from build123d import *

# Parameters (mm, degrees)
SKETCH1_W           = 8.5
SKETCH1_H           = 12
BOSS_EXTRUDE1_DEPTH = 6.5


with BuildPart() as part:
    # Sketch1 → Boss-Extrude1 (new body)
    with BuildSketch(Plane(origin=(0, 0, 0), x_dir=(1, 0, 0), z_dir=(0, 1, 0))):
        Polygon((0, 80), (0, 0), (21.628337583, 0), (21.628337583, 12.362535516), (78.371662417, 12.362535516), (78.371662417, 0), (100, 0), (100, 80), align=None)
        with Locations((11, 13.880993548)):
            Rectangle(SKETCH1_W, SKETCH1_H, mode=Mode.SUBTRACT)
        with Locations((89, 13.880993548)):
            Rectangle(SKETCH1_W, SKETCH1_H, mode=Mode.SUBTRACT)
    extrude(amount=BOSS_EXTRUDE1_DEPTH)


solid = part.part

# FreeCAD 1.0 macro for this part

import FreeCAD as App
import Part
import Sketcher
from FreeCAD import Vector
Q = App.Units.Quantity


def add_polygon(sketch, points):
    """Adds a closed chain of lines whose ends are joined by coincident constraints."""
    first, n = sketch.GeometryCount, len(points)
    for a, b in zip(points, points[1:] + points[:1]):
        sketch.addGeometry(Part.LineSegment(App.Vector(*a, 0), App.Vector(*b, 0)), False)
    for i in range(n):
        sketch.addConstraint(Sketcher.Constraint("Coincident", first + i, 2, first + (i + 1) % n, 1))

doc = App.newDocument("Part")
body = doc.addObject("PartDesign::Body", "Body")

# Sketch on XZ plane
sketch1 = doc.addObject("Sketcher::SketchObject", "Sketch")
body.addObject(sketch1)
sketch1.AttachmentSupport = (doc.XZ_Plane, [""])
sketch1.MapMode = "FlatFace"
add_polygon(sketch1, [(0, -80), (0, 0), (22, 0), (22, -12), (78, -12), (78, 0), (100, 0), (100, -80)])  # lines 0-7
add_polygon(sketch1, [(15, -8), (7, -8), (7, -20), (15, -20)])  # lines 8-11
add_polygon(sketch1, [(93, -8), (85, -8), (85, -20), (93, -20)])  # lines 12-15
sketch1.addConstraint(Sketcher.Constraint("Vertical", 0))
sketch1.addConstraint(Sketcher.Constraint("Horizontal", 1))
sketch1.addConstraint(Sketcher.Constraint("Vertical", 2))
sketch1.addConstraint(Sketcher.Constraint("Horizontal", 3))
sketch1.addConstraint(Sketcher.Constraint("Vertical", 4))
sketch1.addConstraint(Sketcher.Constraint("Horizontal", 5))
sketch1.addConstraint(Sketcher.Constraint("Vertical", 6))
sketch1.addConstraint(Sketcher.Constraint("Horizontal", 7))
sketch1.addConstraint(Sketcher.Constraint("Horizontal", 8))
sketch1.addConstraint(Sketcher.Constraint("Vertical", 9))
sketch1.addConstraint(Sketcher.Constraint("Horizontal", 10))
sketch1.addConstraint(Sketcher.Constraint("Vertical", 11))
sketch1.addConstraint(Sketcher.Constraint("Horizontal", 12))
sketch1.addConstraint(Sketcher.Constraint("Vertical", 13))
sketch1.addConstraint(Sketcher.Constraint("Horizontal", 14))
sketch1.addConstraint(Sketcher.Constraint("Vertical", 15))
sketch1.addConstraint(Sketcher.Constraint("Coincident", 0, 2, -1, 1))
sketch1.addConstraint(Sketcher.Constraint("PointOnObject", 4, 2, -1))
sketch1.addConstraint(Sketcher.Constraint("Horizontal", 11, 2, 12, 2))
sketch1.addConstraint(Sketcher.Constraint("Horizontal", 10, 2, 13, 2))
sketch1.addConstraint(Sketcher.Constraint("Equal", 1, 5))
sketch1.addConstraint(Sketcher.Constraint("Equal", 10, 12))
sketch1.addConstraint(Sketcher.Constraint("DistanceX", 7, 2, 7, 1, Q("100 mm")))
sketch1.addConstraint(Sketcher.Constraint("DistanceY", 0, 1, 0, 2, Q("80 mm")))
sketch1.addConstraint(Sketcher.Constraint("DistanceY", 9, 2, 9, 1, Q("12 mm")))
sketch1.addConstraint(Sketcher.Constraint("DistanceX", 8, 2, 8, 1, Q("8.5 mm")))
sketch1.addConstraint(Sketcher.Constraint("DistanceX", -1, 1, 8, 2, Q("6.75 mm")))
sketch1.addConstraint(Sketcher.Constraint("DistanceX", -1, 1, 12, 2, Q("84.75 mm")))
sketch1.addConstraint(Sketcher.Constraint("DistanceX", 1, 1, 1, 2, Q("21.628338 mm")))
sketch1.addConstraint(Sketcher.Constraint("DistanceY", 2, 2, 2, 1, Q("12.362536 mm")))
sketch1.addConstraint(Sketcher.Constraint("DistanceY", 2, 2, 8, 2, Q("4.481542 mm")))
pad1 = doc.addObject("PartDesign::Pad", "Pad")
body.addObject(pad1)
pad1.Profile = sketch1
pad1.Length = 6.5
pad1.Reversed = True

doc.recompute()
